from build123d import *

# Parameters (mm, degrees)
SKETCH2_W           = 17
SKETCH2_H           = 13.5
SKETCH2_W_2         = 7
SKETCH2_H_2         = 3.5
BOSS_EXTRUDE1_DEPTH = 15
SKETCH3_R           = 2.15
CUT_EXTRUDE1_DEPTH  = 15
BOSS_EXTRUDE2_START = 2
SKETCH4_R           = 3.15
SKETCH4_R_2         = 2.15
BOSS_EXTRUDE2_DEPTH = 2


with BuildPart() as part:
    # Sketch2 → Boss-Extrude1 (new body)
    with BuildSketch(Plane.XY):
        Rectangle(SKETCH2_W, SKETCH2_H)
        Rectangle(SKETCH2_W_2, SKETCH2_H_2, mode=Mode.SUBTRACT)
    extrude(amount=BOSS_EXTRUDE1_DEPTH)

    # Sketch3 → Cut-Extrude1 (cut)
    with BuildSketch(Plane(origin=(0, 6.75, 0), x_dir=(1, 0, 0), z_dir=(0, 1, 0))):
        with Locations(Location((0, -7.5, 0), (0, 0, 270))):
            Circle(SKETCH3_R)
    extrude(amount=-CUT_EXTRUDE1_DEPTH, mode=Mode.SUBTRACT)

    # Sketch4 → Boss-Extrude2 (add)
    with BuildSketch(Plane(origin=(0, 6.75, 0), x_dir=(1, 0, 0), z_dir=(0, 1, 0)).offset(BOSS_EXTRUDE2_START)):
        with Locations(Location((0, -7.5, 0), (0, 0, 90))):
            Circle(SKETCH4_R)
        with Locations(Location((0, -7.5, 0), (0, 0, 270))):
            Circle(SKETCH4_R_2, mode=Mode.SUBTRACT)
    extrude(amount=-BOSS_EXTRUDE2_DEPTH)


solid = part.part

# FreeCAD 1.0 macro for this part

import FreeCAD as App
import Part
import Sketcher
from FreeCAD import Vector
Q = App.Units.Quantity

doc = App.newDocument("Part")
params = doc.addObject("Spreadsheet::Sheet", "Params")
for row, (alias, value) in enumerate([
    ("sketch1_width", "17 mm"),
    ("sketch1_width2", "7 mm"),
    ("sketch1_height", "13.5 mm"),
    ("sketch1_height2", "3.5 mm"),
    ("pad1_length", "15 mm"),
    ("sketch2_diameter", "4.3 mm"),
    ("pocket1_length", "15 mm"),
    ("sketch3_diameter", "6.3 mm"),
    ("sketch3_diameter2", "4.3 mm"),
    ("pad2_length", "2 mm"),
], start=1):
    params.set(f"A{row}", alias)
    params.set(f"B{row}", "=" + value)
    params.setAlias(f"B{row}", alias)

body = doc.addObject("PartDesign::Body", "Body")

sketch1 = body.newObject("Sketcher::SketchObject", "Sketch")
sketch1.AttachmentSupport = (doc.getObject("XY_Plane"), [""])
sketch1.MapMode = "FlatFace"
sketch1.addGeometry(Part.LineSegment(Vector(-8.5, 6.75, 0), Vector(-8.5, -6.75, 0)), False)
sketch1.addGeometry(Part.LineSegment(Vector(-8.5, -6.75, 0), Vector(8.5, -6.75, 0)), False)
sketch1.addGeometry(Part.LineSegment(Vector(8.5, -6.75, 0), Vector(8.5, 6.75, 0)), False)
sketch1.addGeometry(Part.LineSegment(Vector(8.5, 6.75, 0), Vector(-8.5, 6.75, 0)), False)
sketch1.addGeometry(Part.LineSegment(Vector(3.5, -1.75, 0), Vector(-3.5, -1.75, 0)), False)
sketch1.addGeometry(Part.LineSegment(Vector(-3.5, -1.75, 0), Vector(-3.5, 1.75, 0)), False)
sketch1.addGeometry(Part.LineSegment(Vector(-3.5, 1.75, 0), Vector(3.5, 1.75, 0)), False)
sketch1.addGeometry(Part.LineSegment(Vector(3.5, 1.75, 0), Vector(3.5, -1.75, 0)), False)
sketch1.addConstraint(Sketcher.Constraint("Coincident", 0, 2, 1, 1))
sketch1.addConstraint(Sketcher.Constraint("Coincident", 1, 2, 2, 1))
sketch1.addConstraint(Sketcher.Constraint("Coincident", 2, 2, 3, 1))
sketch1.addConstraint(Sketcher.Constraint("Coincident", 3, 2, 0, 1))
sketch1.addConstraint(Sketcher.Constraint("Coincident", 4, 2, 5, 1))
sketch1.addConstraint(Sketcher.Constraint("Coincident", 5, 2, 6, 1))
sketch1.addConstraint(Sketcher.Constraint("Coincident", 6, 2, 7, 1))
sketch1.addConstraint(Sketcher.Constraint("Coincident", 7, 2, 4, 1))
sketch1.addConstraint(Sketcher.Constraint("Vertical", 0))
sketch1.addConstraint(Sketcher.Constraint("Horizontal", 1))
sketch1.addConstraint(Sketcher.Constraint("Vertical", 2))
sketch1.addConstraint(Sketcher.Constraint("Horizontal", 3))
sketch1.addConstraint(Sketcher.Constraint("Horizontal", 4))
sketch1.addConstraint(Sketcher.Constraint("Vertical", 5))
sketch1.addConstraint(Sketcher.Constraint("Horizontal", 6))
sketch1.addConstraint(Sketcher.Constraint("Vertical", 7))
sketch1.addConstraint(Sketcher.Constraint("Symmetric", 0, 2, 2, 2, -1, 1))
sketch1.addConstraint(Sketcher.Constraint("Symmetric", 4, 2, 6, 2, -1, 1))
sketch1.addConstraint(Sketcher.Constraint("DistanceX", 1, 1, 1, 2, Q("17 mm")))
sketch1.addConstraint(Sketcher.Constraint("DistanceX", 4, 2, 4, 1, Q("7 mm")))
sketch1.addConstraint(Sketcher.Constraint("DistanceY", 0, 2, 0, 1, Q("13.5 mm")))
sketch1.addConstraint(Sketcher.Constraint("DistanceY", 5, 1, 5, 2, Q("3.5 mm")))
sketch1.setExpression("Constraints[18]", "Params.sketch1_width")
sketch1.setExpression("Constraints[19]", "Params.sketch1_width2")
sketch1.setExpression("Constraints[20]", "Params.sketch1_height")
sketch1.setExpression("Constraints[21]", "Params.sketch1_height2")
pad1 = body.newObject("PartDesign::Pad", "Pad")
pad1.Profile = sketch1
pad1.setExpression("Length", "Params.pad1_length")

sketch2 = body.newObject("Sketcher::SketchObject", "Sketch001")
sketch2.AttachmentSupport = (doc.getObject("XZ_Plane"), [""])
sketch2.MapMode = "FlatFace"
sketch2.AttachmentOffset = App.Placement(Vector(0, 0, -6.75), App.Rotation())
sketch2.addGeometry(Part.Circle(Vector(0, 7.5, 0), Vector(0, 0, 1), 2.15), False)
sketch2.addConstraint(Sketcher.Constraint("PointOnObject", 0, 3, -2))
sketch2.addConstraint(Sketcher.Constraint("Diameter", 0, Q("4.3 mm")))
sketch2.addConstraint(Sketcher.Constraint("DistanceY", -1, 1, 0, 3, Q("7.5 mm")))
sketch2.setExpression("Constraints[1]", "Params.sketch2_diameter")
pocket1 = body.newObject("PartDesign::Pocket", "Pocket")
pocket1.Profile = sketch2
pocket1.setExpression("Length", "Params.pocket1_length")
pocket1.Reversed = True

sketch3 = body.newObject("Sketcher::SketchObject", "Sketch002")
sketch3.AttachmentSupport = (doc.getObject("XZ_Plane"), [""])
sketch3.MapMode = "FlatFace"
sketch3.AttachmentOffset = App.Placement(Vector(0, 0, -8.75), App.Rotation())
sketch3.addGeometry(Part.Circle(Vector(0, 7.5, 0), Vector(0, 0, 1), 3.15), False)
sketch3.addGeometry(Part.Circle(Vector(0, 7.5, 0), Vector(0, 0, 1), 2.15), False)
sketch3.addConstraint(Sketcher.Constraint("Coincident", 1, 3, 0, 3))
sketch3.addConstraint(Sketcher.Constraint("PointOnObject", 0, 3, -2))
sketch3.addConstraint(Sketcher.Constraint("Diameter", 0, Q("6.3 mm")))
sketch3.addConstraint(Sketcher.Constraint("Diameter", 1, Q("4.3 mm")))
sketch3.addConstraint(Sketcher.Constraint("DistanceY", -1, 1, 0, 3, Q("7.5 mm")))
sketch3.setExpression("Constraints[2]", "Params.sketch3_diameter")
sketch3.setExpression("Constraints[3]", "Params.sketch3_diameter2")
pad2 = body.newObject("PartDesign::Pad", "Pad001")
pad2.Profile = sketch3
pad2.setExpression("Length", "Params.pad2_length")

doc.recompute()
